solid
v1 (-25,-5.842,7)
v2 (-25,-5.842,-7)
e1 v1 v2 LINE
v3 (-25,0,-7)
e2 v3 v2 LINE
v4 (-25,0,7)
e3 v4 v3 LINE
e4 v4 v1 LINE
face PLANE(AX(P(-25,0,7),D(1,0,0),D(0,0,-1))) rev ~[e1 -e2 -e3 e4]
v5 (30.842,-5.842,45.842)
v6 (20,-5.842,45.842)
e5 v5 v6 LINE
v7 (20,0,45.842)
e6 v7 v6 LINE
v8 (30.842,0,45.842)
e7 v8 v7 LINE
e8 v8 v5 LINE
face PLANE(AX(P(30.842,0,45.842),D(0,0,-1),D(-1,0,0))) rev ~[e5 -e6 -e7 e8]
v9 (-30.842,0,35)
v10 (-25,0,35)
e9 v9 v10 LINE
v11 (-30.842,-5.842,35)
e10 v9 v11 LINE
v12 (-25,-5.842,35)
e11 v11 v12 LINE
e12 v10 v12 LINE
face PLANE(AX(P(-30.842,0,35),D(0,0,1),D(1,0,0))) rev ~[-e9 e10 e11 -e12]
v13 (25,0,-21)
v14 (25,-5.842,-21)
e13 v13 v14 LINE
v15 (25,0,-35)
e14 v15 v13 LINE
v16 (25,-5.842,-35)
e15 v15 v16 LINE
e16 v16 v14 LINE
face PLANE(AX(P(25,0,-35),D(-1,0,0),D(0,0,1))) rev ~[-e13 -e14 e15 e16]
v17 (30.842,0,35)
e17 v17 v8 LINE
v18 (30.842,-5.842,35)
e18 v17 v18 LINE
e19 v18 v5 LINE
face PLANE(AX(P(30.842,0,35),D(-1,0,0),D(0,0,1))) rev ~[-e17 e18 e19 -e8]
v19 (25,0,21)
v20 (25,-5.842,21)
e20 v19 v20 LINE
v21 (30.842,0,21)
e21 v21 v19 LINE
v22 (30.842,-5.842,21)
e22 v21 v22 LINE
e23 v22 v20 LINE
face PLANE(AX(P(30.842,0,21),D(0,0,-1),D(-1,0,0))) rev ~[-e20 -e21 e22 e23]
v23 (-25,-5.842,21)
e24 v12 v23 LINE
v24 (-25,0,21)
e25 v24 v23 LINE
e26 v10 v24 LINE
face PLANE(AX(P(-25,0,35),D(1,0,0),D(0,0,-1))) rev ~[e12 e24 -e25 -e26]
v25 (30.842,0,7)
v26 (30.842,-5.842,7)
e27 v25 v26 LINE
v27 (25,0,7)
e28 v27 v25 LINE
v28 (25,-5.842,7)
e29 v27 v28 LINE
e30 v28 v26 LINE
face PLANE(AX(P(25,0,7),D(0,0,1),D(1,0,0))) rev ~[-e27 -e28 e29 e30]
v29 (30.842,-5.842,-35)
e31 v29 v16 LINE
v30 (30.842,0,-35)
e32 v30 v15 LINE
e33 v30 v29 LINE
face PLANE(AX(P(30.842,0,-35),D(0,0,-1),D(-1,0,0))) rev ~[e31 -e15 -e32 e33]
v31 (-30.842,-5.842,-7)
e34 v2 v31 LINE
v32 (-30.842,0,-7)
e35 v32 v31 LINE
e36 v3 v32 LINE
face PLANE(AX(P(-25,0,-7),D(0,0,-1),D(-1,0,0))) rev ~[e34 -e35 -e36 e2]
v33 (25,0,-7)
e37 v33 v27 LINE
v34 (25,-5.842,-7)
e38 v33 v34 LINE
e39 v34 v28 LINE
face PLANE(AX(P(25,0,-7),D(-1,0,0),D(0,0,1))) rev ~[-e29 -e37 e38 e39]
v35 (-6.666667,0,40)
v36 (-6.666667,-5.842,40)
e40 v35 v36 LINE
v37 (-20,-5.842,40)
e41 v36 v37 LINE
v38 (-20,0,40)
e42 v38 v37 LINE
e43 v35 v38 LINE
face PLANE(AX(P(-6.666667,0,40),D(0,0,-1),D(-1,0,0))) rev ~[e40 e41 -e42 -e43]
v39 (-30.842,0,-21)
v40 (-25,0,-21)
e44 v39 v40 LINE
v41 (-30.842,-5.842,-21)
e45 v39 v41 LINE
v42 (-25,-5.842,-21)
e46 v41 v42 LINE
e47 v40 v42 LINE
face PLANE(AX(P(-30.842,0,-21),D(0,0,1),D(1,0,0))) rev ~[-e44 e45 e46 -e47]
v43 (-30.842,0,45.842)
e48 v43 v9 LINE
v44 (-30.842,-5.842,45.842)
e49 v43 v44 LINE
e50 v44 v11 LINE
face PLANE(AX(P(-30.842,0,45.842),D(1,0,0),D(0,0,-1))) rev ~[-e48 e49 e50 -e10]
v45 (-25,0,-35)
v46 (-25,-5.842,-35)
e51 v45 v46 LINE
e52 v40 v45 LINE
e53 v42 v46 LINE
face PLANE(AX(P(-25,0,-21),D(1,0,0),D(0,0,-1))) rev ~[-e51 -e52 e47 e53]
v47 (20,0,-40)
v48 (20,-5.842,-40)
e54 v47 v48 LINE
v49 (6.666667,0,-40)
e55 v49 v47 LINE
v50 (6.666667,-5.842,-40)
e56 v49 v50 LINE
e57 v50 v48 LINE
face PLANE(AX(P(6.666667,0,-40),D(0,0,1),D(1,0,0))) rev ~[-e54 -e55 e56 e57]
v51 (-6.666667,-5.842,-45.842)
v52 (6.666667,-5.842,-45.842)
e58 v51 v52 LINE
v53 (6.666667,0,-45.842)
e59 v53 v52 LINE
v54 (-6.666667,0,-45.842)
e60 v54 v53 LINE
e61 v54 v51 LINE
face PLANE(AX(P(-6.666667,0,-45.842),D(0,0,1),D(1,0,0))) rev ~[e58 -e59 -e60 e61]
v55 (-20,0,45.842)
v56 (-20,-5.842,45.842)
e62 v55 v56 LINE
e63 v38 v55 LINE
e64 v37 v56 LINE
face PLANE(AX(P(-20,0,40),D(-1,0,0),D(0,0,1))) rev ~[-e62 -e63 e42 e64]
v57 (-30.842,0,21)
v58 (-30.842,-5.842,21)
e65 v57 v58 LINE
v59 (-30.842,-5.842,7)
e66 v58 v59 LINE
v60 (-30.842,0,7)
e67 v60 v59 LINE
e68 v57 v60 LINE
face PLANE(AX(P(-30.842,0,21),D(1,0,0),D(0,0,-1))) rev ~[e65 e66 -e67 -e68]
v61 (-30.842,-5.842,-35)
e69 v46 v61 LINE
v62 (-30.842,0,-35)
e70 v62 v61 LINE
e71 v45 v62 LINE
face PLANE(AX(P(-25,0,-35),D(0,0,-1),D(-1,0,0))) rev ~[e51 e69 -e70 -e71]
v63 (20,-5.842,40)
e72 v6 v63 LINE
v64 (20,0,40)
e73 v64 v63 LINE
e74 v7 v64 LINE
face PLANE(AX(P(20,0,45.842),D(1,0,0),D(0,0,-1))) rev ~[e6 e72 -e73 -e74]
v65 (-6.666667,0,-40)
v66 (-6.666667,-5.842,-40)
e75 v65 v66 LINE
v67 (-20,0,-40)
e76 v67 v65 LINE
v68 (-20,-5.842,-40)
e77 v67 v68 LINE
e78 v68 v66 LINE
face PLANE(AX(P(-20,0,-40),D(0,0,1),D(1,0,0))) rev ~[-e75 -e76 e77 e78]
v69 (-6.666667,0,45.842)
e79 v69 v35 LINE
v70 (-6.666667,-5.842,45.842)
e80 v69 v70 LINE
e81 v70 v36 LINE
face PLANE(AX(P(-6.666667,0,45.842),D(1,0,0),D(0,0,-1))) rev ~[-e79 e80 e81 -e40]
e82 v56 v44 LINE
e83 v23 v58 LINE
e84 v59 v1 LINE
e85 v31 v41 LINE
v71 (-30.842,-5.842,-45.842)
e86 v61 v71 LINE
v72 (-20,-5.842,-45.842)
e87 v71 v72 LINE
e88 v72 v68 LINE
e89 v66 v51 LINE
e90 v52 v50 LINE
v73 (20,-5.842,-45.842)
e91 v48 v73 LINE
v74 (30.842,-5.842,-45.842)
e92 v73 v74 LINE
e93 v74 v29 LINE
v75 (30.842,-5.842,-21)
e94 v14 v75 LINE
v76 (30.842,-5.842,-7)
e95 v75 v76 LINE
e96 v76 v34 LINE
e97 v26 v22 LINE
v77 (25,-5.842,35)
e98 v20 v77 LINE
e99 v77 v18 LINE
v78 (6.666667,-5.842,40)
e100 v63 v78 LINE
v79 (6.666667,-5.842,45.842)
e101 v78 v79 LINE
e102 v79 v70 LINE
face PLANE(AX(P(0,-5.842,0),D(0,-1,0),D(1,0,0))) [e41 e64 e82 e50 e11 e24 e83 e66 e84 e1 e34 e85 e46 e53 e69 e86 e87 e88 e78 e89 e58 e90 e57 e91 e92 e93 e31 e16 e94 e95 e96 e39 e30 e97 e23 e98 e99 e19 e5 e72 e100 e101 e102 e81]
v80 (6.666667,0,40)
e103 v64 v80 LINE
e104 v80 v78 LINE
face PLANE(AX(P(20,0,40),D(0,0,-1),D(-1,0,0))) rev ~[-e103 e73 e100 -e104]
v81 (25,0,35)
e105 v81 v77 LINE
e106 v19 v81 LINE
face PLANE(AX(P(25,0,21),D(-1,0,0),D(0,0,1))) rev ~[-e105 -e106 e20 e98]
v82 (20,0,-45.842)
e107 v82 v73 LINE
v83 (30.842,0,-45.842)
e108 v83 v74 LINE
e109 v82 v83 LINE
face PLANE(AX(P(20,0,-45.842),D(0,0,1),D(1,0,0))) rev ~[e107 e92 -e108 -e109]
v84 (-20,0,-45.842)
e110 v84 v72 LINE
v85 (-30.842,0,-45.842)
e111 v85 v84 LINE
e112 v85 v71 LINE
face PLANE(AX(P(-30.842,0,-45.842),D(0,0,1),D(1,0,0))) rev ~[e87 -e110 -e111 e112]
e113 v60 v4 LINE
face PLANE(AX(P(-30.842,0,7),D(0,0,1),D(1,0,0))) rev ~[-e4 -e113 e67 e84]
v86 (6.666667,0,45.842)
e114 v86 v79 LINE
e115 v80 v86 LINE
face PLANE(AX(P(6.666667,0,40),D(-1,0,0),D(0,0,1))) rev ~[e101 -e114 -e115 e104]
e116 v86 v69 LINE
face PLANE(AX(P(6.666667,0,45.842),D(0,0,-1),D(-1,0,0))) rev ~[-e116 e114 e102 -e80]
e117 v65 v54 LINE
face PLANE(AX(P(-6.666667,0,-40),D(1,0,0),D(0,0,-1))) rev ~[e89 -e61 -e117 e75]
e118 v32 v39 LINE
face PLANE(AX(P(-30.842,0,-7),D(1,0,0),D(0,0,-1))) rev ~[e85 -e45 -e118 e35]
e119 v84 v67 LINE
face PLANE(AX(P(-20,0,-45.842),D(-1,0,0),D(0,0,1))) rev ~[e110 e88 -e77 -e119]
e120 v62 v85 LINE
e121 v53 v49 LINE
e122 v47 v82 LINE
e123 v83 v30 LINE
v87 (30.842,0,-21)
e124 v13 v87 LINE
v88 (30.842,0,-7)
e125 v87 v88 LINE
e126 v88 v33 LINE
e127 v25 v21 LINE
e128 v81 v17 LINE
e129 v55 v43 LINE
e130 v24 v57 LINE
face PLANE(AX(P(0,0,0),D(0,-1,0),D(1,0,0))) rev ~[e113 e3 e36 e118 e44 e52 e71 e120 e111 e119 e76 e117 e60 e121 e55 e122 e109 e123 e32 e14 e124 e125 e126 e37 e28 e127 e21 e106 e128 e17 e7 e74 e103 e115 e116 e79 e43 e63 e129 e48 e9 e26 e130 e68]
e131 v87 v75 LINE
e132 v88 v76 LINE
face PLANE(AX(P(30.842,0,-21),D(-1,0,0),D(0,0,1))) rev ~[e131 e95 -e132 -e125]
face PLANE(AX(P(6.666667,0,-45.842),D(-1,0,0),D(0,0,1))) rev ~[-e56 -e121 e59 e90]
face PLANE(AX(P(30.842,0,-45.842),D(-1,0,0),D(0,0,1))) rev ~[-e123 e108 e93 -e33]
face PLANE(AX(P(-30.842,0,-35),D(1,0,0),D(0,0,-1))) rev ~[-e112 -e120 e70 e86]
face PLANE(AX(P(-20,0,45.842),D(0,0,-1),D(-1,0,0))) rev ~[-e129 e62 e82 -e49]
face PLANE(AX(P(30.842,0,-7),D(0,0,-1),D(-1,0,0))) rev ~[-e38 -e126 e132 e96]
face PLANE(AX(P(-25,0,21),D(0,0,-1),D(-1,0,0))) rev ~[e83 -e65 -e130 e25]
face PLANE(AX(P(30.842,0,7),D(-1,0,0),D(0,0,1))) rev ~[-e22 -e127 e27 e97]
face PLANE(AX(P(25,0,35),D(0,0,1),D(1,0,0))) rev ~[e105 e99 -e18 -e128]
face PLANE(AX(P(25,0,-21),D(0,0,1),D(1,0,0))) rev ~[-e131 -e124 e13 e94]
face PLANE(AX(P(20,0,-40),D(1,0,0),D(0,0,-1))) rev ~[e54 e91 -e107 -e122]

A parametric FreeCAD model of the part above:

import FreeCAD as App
import Part
import Sketcher


def add_polygon(sketch, points):
    """Adds a closed chain of lines whose ends are joined by coincident constraints."""
    first, n = sketch.GeometryCount, len(points)
    for a, b in zip(points, points[1:] + points[:1]):
        sketch.addGeometry(Part.LineSegment(App.Vector(*a, 0), App.Vector(*b, 0)), False)
    for i in range(n):
        sketch.addConstraint(Sketcher.Constraint("Coincident", first + i, 2, first + (i + 1) % n, 1))

doc = App.newDocument("Part")
body = doc.addObject("PartDesign::Body", "Body")

# Sketch on XZ plane
sketch1 = body.newObject("Sketcher::SketchObject", "Sketch")
sketch1.AttachmentSupport = (doc.getObject("XZ_Plane"), [""])
sketch1.MapMode = "FlatFace"
add_polygon(sketch1, [(-20, -46), (-20, -40), (-7, -40), (-7, -46), (7, -46), (7, -40), (20, -40), (20, -46), (31, -46), (31, -35), (25, -35), (25, -21), (31, -21), (31, -7), (25, -7), (25, 7), (31, 7), (31, 21), (25, 21), (25, 35), (31, 35), (31, 46), (20, 46), (20, 40), (7, 40), (7, 46), (-7, 46), (-7, 40), (-20, 40), (-20, 46), (-31, 46), (-31, 35), (-25, 35), (-25, 21), (-31, 21), (-31, 7), (-25, 7), (-25, -7), (-31, -7), (-31, -21), (-25, -21), (-25, -35), (-31, -35), (-31, -46)])  # lines 0-43
sketch1.addConstraint([
    Sketcher.Constraint("Vertical", 0),
    Sketcher.Constraint("Horizontal", 1),
    Sketcher.Constraint("Vertical", 2),
    Sketcher.Constraint("Horizontal", 3),
    Sketcher.Constraint("Vertical", 4),
    Sketcher.Constraint("Horizontal", 5),
    Sketcher.Constraint("Vertical", 6),
    Sketcher.Constraint("Horizontal", 7),
    Sketcher.Constraint("Vertical", 8),
    Sketcher.Constraint("Horizontal", 9),
    Sketcher.Constraint("Vertical", 10),
    Sketcher.Constraint("Horizontal", 11),
    Sketcher.Constraint("Vertical", 12),
    Sketcher.Constraint("Horizontal", 13),
    Sketcher.Constraint("Vertical", 14),
    Sketcher.Constraint("Horizontal", 15),
    Sketcher.Constraint("Vertical", 16),
    Sketcher.Constraint("Horizontal", 17),
    Sketcher.Constraint("Vertical", 18),
    Sketcher.Constraint("Horizontal", 19),
    Sketcher.Constraint("Vertical", 20),
    Sketcher.Constraint("Horizontal", 21),
    Sketcher.Constraint("Vertical", 22),
    Sketcher.Constraint("Horizontal", 23),
    Sketcher.Constraint("Vertical", 24),
    Sketcher.Constraint("Horizontal", 25),
    Sketcher.Constraint("Vertical", 26),
    Sketcher.Constraint("Horizontal", 27),
    Sketcher.Constraint("Vertical", 28),
    Sketcher.Constraint("Horizontal", 29),
    Sketcher.Constraint("Vertical", 30),
    Sketcher.Constraint("Horizontal", 31),
    Sketcher.Constraint("Vertical", 32),
    Sketcher.Constraint("Horizontal", 33),
    Sketcher.Constraint("Vertical", 34),
    Sketcher.Constraint("Horizontal", 35),
    Sketcher.Constraint("Vertical", 36),
    Sketcher.Constraint("Horizontal", 37),
    Sketcher.Constraint("Vertical", 38),
    Sketcher.Constraint("Horizontal", 39),
    Sketcher.Constraint("Vertical", 40),
    Sketcher.Constraint("Horizontal", 41),
    Sketcher.Constraint("Vertical", 42),
    Sketcher.Constraint("Horizontal", 43),
    Sketcher.Constraint("Symmetric", 0, 2, 22, 2, -1, 1),
    Sketcher.Constraint("Symmetric", 2, 2, 24, 2, -1, 1),
    Sketcher.Constraint("Symmetric", 4, 2, 26, 2, -1, 1),
    Sketcher.Constraint("Symmetric", 6, 2, 28, 2, -1, 1),
    Sketcher.Constraint("Symmetric", 8, 2, 30, 2, -1, 1),
    Sketcher.Constraint("Symmetric", 10, 2, 32, 2, -1, 1),
    Sketcher.Constraint("Symmetric", 12, 2, 34, 2, -1, 1),
    Sketcher.Constraint("Symmetric", 14, 2, 36, 2, -1, 1),
    Sketcher.Constraint("Symmetric", 16, 2, 38, 2, -1, 1),
    Sketcher.Constraint("Symmetric", 18, 2, 40, 2, -1, 1),
    Sketcher.Constraint("Symmetric", 20, 2, 42, 2, -1, 1),
    Sketcher.Constraint("Symmetric", 1, 2, 4, 2, -2),
    Sketcher.Constraint("Symmetric", 21, 2, 28, 2, -2),
    Sketcher.Constraint("Symmetric", 19, 2, 30, 2, -2),
    Sketcher.Constraint("Symmetric", 17, 2, 32, 2, -2),
    Sketcher.Constraint("Symmetric", 15, 2, 34, 2, -2),
    Sketcher.Constraint("Horizontal", 3, 2, 6, 2),
    Sketcher.Constraint("Vertical", 8, 2, 11, 2),
    Sketcher.Constraint("Vertical", 10, 2, 13, 2),
    Sketcher.Constraint("Equal", 1, 3),
    Sketcher.Constraint("Equal", 41, 0),
    Sketcher.Constraint("Equal", 43, 8),
    Sketcher.Constraint("Equal", 10, 12),
    Sketcher.Constraint("Equal", 12, 14),
    Sketcher.Constraint("DistanceY", 10, 1, 10, 2, 14.0),
    Sketcher.Constraint("DistanceX", 0, 2, -1, 1, 20.0),
    Sketcher.Constraint("DistanceY", 0, 2, -1, 1, 40.0),
    Sketcher.Constraint("DistanceX", 7, 1, 7, 2, 10.842),
])
pad1 = body.newObject("PartDesign::Pad", "Pad")
pad1.Profile = sketch1
pad1.Length = 5.842

doc.recompute()
